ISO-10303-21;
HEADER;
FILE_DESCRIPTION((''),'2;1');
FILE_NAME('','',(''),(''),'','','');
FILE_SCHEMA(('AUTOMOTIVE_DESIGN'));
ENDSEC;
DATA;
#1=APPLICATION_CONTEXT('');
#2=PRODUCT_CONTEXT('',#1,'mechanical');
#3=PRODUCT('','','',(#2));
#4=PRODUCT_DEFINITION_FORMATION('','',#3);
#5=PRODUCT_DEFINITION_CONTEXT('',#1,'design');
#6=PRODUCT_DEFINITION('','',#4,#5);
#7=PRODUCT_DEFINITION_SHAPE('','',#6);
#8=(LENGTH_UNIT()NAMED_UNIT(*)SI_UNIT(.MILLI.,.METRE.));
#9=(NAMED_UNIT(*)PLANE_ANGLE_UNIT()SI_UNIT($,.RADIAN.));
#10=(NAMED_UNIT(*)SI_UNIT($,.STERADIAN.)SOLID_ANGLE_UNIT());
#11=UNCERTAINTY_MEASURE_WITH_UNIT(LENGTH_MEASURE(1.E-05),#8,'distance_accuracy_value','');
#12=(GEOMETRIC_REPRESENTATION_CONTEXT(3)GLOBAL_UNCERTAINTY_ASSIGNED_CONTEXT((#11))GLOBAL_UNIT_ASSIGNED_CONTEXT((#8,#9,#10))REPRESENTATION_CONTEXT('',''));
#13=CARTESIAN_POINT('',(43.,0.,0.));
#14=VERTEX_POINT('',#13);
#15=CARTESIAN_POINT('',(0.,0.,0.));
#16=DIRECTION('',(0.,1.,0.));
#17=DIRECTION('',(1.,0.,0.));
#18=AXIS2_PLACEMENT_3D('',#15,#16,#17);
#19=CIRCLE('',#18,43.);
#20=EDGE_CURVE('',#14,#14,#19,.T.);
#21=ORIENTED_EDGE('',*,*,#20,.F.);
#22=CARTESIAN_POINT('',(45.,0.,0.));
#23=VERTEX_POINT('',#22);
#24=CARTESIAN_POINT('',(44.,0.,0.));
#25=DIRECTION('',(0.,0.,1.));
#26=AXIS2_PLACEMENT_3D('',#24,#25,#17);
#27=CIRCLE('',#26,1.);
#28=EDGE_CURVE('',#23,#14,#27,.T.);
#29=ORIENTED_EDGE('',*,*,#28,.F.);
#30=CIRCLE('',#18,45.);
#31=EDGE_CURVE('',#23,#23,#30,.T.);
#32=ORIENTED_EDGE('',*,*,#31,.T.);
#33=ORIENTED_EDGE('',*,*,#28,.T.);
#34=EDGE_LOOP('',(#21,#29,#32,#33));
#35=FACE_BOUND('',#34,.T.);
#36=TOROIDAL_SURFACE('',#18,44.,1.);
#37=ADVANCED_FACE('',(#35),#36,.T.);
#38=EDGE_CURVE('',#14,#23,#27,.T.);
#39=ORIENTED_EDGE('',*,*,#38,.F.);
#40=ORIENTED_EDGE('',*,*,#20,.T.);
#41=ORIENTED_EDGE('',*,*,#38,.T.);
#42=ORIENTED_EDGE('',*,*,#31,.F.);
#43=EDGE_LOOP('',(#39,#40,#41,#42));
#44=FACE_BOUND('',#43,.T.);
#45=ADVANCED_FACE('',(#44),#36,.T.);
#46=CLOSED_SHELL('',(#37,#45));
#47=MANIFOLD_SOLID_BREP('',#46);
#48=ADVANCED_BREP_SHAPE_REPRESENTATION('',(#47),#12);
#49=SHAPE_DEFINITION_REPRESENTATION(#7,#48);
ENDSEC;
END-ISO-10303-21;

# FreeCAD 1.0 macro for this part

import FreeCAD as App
import Part
import Sketcher
from FreeCAD import Vector

doc = App.newDocument("Part")
params = doc.addObject("Spreadsheet::Sheet", "Params")
for row, (alias, value) in enumerate([
    ("sketch1_diameter", "2 mm"),
    ("revolution_angle", "360 deg"),
], start=1):
    params.set(f"A{row}", alias)
    params.set(f"B{row}", "=" + value)
    params.setAlias(f"B{row}", alias)

body = doc.addObject("PartDesign::Body", "Body")

sketch1 = doc.addObject("Sketcher::SketchObject", "Sketch")
body.addObject(sketch1)
sketch1.AttachmentSupport = (doc.XY_Plane, [""])
sketch1.MapMode = "FlatFace"
sketch1.addGeometry(Part.Circle(Vector(44, 0, 0), Vector(0, 0, 1), 1), False)
sketch1.addConstraint([
    Sketcher.Constraint("PointOnObject", 0, 3, -1),
    Sketcher.Constraint("Diameter", 0, 2.0),
    Sketcher.Constraint("DistanceX", -1, 1, 0, 3, 44.0),
])
sketch1.setExpression("Constraints[1]", "Params.sketch1_diameter")
revolution = doc.addObject("PartDesign::Revolution", "Revolution")
body.addObject(revolution)
revolution.Profile = sketch1
revolution.ReferenceAxis = (sketch1, ["V_Axis"])
revolution.setExpression("Angle", "Params.revolution_angle")

doc.recompute()
